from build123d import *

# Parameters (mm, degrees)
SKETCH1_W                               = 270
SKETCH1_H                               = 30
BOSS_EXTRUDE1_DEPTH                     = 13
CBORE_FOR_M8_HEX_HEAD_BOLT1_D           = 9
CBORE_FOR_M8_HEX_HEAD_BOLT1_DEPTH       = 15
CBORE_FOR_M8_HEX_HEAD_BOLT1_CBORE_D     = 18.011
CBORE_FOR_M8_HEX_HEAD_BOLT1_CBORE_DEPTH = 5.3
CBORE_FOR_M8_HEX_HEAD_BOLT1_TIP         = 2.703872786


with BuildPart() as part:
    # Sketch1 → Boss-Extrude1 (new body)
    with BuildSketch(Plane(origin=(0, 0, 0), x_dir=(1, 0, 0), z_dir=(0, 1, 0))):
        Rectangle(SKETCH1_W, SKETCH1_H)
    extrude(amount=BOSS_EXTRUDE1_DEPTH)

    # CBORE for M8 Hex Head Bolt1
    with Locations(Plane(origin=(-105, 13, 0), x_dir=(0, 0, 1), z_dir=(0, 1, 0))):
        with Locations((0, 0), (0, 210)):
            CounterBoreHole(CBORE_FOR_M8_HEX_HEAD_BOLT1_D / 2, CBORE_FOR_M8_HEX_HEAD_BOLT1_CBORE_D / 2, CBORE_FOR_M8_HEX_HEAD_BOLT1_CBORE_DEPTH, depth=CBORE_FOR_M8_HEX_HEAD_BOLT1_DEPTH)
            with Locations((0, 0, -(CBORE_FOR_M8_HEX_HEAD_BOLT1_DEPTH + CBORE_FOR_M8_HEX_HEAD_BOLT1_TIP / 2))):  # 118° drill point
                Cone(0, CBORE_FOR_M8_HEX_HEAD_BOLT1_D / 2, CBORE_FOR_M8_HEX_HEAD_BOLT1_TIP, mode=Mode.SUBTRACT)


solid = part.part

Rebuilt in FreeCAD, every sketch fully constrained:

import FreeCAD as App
import Part
import Sketcher
from FreeCAD import Vector
Q = App.Units.Quantity


def add_polygon(sketch, points):
    """Adds a closed chain of lines whose ends are joined by coincident constraints."""
    first, n = sketch.GeometryCount, len(points)
    for a, b in zip(points, points[1:] + points[:1]):
        sketch.addGeometry(Part.LineSegment(App.Vector(*a, 0), App.Vector(*b, 0)), False)
    for i in range(n):
        sketch.addConstraint(Sketcher.Constraint("Coincident", first + i, 2, first + (i + 1) % n, 1))

doc = App.newDocument("Part")
body = doc.addObject("PartDesign::Body", "Body")

# Sketch on XZ plane
sketch1 = body.newObject("Sketcher::SketchObject", "Sketch")
sketch1.AttachmentSupport = (doc.getObject("XZ_Plane"), [""])
sketch1.MapMode = "FlatFace"
add_polygon(sketch1, [(-135, -15), (-135, 15), (135, 15), (135, -15)])  # lines 0-3
sketch1.addConstraint(Sketcher.Constraint("Vertical", 0))
sketch1.addConstraint(Sketcher.Constraint("Horizontal", 1))
sketch1.addConstraint(Sketcher.Constraint("Vertical", 2))
sketch1.addConstraint(Sketcher.Constraint("Horizontal", 3))
sketch1.addConstraint(Sketcher.Constraint("Symmetric", 0, 2, 2, 2, -1, 1))
sketch1.addConstraint(Sketcher.Constraint("DistanceX", 1, 1, 1, 2, Q("270 mm")))
sketch1.addConstraint(Sketcher.Constraint("DistanceY", 0, 1, 0, 2, Q("30 mm")))
pad1 = body.newObject("PartDesign::Pad", "Pad")
pad1.Profile = sketch1
pad1.Length = 13
pad1.Reversed = True

# Sketch on XZ plane
sketch2 = body.newObject("Sketcher::SketchObject", "Sketch001")
sketch2.AttachmentSupport = (doc.getObject("XZ_Plane"), [""])
sketch2.MapMode = "FlatFace"
sketch2.AttachmentOffset = App.Placement(Vector(0, 0, -13), App.Rotation())
sketch2.addGeometry(Part.Circle(Vector(-105, 0, 0), Vector(0, 0, 1), 4.5), False)
sketch2.addGeometry(Part.Circle(Vector(105, 0, 0), Vector(0, 0, 1), 4.5), False)
sketch2.addConstraint(Sketcher.Constraint("Equal", 0, 1))
sketch2.addConstraint(Sketcher.Constraint("Symmetric", 0, 3, 1, 3, -1, 1))
sketch2.addConstraint(Sketcher.Constraint("PointOnObject", 0, 3, -1))
sketch2.addConstraint(Sketcher.Constraint("Diameter", 0, Q("9 mm")))
sketch2.addConstraint(Sketcher.Constraint("DistanceX", 0, 3, -1, 1, Q("105 mm")))
doc.recompute()
hole = body.newObject("PartDesign::Hole", "Hole")
hole.Profile = sketch2
hole.ThreadType = "None"
hole.Diameter = 9
hole.DepthType = "Dimension"
hole.Depth = 15
hole.DrillPoint = "Angled"
hole.DrillPointAngle = 118
hole.HoleCutType = "Counterbore"
hole.HoleCutDiameter = 18.011
hole.HoleCutDepth = 5.3
hole.Reversed = True

doc.recompute()
